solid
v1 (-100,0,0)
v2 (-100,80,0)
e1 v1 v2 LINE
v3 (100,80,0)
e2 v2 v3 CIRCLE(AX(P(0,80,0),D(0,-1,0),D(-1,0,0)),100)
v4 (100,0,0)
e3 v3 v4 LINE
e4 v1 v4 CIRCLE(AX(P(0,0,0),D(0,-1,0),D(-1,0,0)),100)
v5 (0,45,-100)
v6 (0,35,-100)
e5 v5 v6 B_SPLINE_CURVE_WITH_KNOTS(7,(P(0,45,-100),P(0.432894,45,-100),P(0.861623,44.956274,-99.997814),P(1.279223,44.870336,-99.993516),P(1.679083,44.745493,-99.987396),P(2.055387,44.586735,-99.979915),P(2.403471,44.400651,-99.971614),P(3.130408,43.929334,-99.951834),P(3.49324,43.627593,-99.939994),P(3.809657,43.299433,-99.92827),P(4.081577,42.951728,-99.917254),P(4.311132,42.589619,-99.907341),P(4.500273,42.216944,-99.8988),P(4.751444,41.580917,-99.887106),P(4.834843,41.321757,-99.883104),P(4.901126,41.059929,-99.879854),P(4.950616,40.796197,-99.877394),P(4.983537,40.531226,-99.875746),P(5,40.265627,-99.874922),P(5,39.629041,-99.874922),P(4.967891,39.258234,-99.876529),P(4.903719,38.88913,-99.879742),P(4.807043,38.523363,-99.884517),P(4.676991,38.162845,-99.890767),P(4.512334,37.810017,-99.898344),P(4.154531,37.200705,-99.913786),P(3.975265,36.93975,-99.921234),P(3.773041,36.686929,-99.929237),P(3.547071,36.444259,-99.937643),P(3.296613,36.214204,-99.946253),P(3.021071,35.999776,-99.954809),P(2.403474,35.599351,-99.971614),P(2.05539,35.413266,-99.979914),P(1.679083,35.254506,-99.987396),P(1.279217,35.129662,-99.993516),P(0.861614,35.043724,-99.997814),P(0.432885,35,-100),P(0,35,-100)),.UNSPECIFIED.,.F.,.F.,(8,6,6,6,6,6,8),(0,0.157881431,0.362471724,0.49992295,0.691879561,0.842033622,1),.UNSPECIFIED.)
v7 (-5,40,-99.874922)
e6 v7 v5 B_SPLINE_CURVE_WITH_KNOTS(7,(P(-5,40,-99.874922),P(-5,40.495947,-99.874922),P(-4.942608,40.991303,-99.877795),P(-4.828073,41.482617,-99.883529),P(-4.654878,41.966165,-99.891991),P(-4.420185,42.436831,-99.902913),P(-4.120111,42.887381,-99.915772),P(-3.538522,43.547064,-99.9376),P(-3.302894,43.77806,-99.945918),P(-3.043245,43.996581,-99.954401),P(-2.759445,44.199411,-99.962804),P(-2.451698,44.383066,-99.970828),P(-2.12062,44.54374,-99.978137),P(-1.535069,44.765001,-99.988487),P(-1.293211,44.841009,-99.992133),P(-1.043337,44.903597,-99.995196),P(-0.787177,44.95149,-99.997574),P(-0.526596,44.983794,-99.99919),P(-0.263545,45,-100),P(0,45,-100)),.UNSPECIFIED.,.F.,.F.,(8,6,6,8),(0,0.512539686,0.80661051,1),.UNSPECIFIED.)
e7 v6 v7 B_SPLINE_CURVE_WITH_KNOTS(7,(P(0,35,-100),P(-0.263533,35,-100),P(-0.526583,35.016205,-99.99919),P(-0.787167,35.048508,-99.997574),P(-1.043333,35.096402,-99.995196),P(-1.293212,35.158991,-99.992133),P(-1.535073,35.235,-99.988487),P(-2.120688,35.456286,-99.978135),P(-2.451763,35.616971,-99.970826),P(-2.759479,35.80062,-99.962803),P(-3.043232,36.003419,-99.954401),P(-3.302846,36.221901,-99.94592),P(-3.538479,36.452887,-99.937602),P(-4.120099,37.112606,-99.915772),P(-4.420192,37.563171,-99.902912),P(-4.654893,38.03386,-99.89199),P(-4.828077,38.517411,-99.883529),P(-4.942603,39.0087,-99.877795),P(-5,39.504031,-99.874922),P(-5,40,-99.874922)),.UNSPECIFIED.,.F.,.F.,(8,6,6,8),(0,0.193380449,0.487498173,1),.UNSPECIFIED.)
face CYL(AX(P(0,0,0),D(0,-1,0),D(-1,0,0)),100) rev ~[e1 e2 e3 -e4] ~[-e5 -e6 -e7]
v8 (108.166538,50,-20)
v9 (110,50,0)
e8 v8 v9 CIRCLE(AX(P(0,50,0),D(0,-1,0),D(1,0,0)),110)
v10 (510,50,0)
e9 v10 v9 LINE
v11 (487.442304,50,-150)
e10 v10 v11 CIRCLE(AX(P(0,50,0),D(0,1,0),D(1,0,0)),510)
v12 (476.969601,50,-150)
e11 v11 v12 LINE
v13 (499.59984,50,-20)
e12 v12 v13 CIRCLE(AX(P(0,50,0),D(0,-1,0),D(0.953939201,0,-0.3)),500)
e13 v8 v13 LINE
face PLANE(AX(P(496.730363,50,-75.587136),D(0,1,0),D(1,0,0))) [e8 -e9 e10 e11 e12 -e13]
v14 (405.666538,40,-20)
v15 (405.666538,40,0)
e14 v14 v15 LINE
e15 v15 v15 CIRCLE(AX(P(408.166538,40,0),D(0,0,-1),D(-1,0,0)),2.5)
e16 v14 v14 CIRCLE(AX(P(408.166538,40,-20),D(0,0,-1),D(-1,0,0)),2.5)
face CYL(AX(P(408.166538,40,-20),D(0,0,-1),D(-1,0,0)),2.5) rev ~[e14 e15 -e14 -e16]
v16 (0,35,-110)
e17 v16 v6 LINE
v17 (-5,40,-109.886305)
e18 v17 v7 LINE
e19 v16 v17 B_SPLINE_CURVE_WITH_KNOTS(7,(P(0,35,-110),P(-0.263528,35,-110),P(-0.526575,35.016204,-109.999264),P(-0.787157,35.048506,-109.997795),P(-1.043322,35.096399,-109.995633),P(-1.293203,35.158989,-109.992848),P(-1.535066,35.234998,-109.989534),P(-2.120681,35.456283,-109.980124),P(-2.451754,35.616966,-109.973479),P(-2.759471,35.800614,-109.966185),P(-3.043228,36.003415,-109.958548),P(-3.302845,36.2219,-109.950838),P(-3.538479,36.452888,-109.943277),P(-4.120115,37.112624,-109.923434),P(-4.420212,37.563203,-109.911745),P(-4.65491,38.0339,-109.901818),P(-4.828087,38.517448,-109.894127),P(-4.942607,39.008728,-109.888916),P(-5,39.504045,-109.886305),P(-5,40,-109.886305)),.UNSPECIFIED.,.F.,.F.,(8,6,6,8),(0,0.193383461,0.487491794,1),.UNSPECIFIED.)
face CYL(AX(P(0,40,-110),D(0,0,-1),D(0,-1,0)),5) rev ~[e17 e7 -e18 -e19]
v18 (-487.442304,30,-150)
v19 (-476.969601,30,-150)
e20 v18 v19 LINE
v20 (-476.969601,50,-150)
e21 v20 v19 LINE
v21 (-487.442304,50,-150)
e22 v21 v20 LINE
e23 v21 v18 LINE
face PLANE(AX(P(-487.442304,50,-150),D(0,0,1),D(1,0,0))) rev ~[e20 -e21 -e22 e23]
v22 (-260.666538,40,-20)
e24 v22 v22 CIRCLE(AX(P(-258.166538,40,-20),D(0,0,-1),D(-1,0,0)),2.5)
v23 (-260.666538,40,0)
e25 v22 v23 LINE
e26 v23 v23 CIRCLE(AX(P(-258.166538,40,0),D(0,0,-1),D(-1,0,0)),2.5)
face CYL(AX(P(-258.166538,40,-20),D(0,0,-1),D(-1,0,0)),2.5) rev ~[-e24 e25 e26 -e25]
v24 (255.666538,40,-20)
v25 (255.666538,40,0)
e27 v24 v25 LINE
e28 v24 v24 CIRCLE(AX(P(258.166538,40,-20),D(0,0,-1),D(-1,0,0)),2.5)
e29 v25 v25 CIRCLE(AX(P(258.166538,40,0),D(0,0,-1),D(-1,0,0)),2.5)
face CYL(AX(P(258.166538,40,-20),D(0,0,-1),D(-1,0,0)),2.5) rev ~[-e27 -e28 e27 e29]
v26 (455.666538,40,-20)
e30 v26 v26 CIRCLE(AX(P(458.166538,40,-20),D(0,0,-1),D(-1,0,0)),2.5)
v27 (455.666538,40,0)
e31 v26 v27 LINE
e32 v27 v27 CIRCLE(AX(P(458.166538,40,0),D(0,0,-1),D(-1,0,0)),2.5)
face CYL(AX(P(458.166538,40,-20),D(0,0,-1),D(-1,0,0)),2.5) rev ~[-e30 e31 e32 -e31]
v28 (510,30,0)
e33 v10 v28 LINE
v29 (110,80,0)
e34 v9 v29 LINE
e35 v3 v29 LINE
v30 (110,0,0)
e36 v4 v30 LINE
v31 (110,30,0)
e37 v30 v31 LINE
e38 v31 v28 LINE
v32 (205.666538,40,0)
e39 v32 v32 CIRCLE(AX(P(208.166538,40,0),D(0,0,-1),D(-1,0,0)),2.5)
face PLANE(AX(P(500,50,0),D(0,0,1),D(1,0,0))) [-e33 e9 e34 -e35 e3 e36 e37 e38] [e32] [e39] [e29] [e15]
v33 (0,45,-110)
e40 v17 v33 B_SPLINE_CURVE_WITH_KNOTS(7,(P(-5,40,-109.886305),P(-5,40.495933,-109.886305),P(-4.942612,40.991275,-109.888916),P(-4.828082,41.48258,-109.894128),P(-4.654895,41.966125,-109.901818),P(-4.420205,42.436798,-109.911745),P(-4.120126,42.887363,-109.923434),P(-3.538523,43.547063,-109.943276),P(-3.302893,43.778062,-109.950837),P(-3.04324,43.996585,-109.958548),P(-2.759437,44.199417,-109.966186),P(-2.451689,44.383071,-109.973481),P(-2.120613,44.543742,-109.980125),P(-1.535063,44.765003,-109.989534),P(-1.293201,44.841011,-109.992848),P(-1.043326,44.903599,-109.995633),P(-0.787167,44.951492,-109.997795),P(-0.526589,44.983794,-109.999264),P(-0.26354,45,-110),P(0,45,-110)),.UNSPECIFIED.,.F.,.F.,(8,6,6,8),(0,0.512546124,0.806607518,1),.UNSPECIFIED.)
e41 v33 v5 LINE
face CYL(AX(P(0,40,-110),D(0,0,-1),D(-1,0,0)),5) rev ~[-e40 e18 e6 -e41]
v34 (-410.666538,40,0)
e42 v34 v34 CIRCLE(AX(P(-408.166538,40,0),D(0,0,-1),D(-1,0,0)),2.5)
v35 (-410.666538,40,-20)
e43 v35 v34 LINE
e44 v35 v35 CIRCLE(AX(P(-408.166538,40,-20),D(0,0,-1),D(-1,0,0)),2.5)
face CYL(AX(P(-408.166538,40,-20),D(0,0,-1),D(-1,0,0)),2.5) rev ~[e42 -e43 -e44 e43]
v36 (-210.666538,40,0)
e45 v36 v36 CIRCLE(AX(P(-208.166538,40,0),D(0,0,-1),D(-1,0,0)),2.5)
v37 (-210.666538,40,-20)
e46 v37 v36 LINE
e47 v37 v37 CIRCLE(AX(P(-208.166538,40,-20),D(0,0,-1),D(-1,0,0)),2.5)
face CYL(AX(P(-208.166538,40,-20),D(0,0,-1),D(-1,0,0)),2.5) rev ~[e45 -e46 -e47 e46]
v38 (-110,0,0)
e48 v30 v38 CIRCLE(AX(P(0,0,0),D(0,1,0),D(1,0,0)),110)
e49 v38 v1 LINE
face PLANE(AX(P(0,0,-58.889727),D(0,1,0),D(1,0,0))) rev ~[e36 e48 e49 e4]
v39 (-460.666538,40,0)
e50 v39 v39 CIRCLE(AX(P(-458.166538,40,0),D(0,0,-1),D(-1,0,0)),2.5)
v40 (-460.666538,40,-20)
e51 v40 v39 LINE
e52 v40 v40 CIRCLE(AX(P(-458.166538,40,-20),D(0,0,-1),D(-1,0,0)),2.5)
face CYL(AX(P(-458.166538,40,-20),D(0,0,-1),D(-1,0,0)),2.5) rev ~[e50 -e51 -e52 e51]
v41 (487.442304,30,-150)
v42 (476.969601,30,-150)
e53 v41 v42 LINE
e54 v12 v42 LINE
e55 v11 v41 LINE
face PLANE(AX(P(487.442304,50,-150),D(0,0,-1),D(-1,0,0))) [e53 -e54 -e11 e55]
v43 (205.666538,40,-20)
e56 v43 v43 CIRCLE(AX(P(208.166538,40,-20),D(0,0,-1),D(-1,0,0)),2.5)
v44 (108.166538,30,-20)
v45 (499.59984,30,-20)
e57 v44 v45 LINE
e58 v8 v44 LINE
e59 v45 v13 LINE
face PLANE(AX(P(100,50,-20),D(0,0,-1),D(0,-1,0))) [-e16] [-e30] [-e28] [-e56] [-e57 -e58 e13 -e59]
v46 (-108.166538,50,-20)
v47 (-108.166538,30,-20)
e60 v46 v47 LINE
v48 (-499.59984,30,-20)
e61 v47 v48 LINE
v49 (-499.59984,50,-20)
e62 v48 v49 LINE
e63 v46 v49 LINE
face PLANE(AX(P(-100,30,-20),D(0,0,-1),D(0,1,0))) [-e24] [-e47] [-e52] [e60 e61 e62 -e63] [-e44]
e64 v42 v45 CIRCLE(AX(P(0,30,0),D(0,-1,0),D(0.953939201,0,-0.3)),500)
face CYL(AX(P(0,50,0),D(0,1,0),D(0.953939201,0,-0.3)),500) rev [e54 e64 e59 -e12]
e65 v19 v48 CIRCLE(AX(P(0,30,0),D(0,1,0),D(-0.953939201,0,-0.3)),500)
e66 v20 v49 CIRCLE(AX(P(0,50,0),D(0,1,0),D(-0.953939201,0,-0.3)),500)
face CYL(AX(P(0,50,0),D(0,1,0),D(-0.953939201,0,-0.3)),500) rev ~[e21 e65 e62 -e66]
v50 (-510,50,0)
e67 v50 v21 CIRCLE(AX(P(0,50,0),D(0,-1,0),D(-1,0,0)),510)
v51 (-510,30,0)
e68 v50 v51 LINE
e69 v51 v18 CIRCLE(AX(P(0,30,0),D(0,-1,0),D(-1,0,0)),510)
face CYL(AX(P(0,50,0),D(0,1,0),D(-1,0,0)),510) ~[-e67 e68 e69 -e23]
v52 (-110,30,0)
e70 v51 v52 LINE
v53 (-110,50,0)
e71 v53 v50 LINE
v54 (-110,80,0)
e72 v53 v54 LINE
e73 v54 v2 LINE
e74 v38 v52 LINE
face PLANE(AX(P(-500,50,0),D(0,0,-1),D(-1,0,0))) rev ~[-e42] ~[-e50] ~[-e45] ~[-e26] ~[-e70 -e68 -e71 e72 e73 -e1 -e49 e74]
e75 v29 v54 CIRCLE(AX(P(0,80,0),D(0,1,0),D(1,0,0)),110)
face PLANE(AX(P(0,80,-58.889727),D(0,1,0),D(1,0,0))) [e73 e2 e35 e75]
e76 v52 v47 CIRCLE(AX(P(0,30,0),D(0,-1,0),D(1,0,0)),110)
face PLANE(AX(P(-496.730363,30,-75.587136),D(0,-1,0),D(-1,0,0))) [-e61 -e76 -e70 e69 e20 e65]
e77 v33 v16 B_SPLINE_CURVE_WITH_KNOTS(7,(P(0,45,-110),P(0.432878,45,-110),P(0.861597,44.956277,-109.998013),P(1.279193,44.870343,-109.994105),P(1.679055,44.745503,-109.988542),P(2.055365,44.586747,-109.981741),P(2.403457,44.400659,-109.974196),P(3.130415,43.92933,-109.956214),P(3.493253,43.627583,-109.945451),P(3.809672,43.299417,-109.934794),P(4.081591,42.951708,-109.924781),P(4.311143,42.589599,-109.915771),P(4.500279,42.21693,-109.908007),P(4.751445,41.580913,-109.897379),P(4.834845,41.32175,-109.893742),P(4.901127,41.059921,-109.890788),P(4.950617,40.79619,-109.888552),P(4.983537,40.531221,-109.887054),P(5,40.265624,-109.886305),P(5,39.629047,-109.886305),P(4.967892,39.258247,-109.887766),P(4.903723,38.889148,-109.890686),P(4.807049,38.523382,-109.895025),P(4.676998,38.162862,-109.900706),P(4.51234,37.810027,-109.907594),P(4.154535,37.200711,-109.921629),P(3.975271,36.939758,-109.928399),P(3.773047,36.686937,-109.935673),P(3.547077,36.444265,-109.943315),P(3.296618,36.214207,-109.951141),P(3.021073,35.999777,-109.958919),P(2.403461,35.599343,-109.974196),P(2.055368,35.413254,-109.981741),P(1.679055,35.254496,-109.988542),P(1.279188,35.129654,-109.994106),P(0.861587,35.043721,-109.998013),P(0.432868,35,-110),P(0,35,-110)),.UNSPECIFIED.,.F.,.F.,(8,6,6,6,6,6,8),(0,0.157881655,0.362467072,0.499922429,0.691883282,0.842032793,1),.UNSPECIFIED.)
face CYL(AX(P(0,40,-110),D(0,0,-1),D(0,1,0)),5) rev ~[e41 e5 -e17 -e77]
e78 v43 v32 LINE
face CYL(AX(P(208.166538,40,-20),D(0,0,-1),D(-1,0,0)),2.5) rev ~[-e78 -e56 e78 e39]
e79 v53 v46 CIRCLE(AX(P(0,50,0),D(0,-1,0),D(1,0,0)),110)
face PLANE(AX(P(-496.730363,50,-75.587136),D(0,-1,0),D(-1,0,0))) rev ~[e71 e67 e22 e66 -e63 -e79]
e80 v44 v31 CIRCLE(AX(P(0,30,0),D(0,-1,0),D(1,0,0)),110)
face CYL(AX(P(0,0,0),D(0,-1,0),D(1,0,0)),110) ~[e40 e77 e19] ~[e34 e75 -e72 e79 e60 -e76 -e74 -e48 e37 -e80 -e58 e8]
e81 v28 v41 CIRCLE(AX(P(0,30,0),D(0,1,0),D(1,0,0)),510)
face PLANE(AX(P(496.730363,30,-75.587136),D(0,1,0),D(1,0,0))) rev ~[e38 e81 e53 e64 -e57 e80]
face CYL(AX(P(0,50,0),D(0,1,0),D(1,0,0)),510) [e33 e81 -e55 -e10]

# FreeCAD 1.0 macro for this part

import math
import FreeCAD as App
import Part
import Sketcher
Q = App.Units.Quantity


def add_polygon(sketch, points):
    """Adds a closed chain of lines whose ends are joined by coincident constraints."""
    first, n = sketch.GeometryCount, len(points)
    for a, b in zip(points, points[1:] + points[:1]):
        sketch.addGeometry(Part.LineSegment(App.Vector(*a, 0), App.Vector(*b, 0)), False)
    for i in range(n):
        sketch.addConstraint(Sketcher.Constraint("Coincident", first + i, 2, first + (i + 1) % n, 1))

doc = App.newDocument("Part")
body = doc.addObject("PartDesign::Body", "Body")

# Sketch on XZ plane
sketch1 = body.newObject("Sketcher::SketchObject", "Sketch")
sketch1.AttachmentSupport = (doc.getObject("XZ_Plane"), [""])
sketch1.MapMode = "FlatFace"
sketch1.addGeometry(Part.LineSegment(App.Vector(-110, 0, 0), App.Vector(-100, 0, 0)), False)
sketch1.addGeometry(Part.ArcOfCircle(Part.Circle(App.Vector(0, 0, 0), App.Vector(0, 0, 1), 100), math.radians(180), math.radians(360)), False)
sketch1.addGeometry(Part.LineSegment(App.Vector(100, 0, 0), App.Vector(110, 0, 0)), False)
sketch1.addGeometry(Part.ArcOfCircle(Part.Circle(App.Vector(0, 0, 0), App.Vector(0, 0, 1), 110), math.radians(180), math.radians(360)), False)
sketch1.addConstraint(Sketcher.Constraint("Coincident", 0, 2, 1, 1))
sketch1.addConstraint(Sketcher.Constraint("Coincident", 1, 2, 2, 1))
sketch1.addConstraint(Sketcher.Constraint("Coincident", 2, 2, 3, 2))
sketch1.addConstraint(Sketcher.Constraint("Coincident", 3, 1, 0, 1))
sketch1.addConstraint(Sketcher.Constraint("Horizontal", 0))
sketch1.addConstraint(Sketcher.Constraint("Horizontal", 2))
sketch1.addConstraint(Sketcher.Constraint("Coincident", 1, 3, -1, 1))
sketch1.addConstraint(Sketcher.Constraint("Coincident", 3, 3, -1, 1))
sketch1.addConstraint(Sketcher.Constraint("PointOnObject", 0, 2, -1))
sketch1.addConstraint(Sketcher.Constraint("PointOnObject", 1, 2, -1))
sketch1.addConstraint(Sketcher.Constraint("Radius", 1, Q("100 mm")))
sketch1.addConstraint(Sketcher.Constraint("Radius", 3, Q("110 mm")))
pad1 = body.newObject("PartDesign::Pad", "Pad")
pad1.Profile = sketch1
pad1.Length = 80
pad1.Reversed = True

# Sketch on YZ plane
sketch2 = body.newObject("Sketcher::SketchObject", "Sketch001")
sketch2.AttachmentSupport = (doc.getObject("YZ_Plane"), [""])
sketch2.MapMode = "FlatFace"
sketch2.AttachmentOffset = App.Placement(App.Vector(0, 0, 100), App.Rotation())
add_polygon(sketch2, [(50, -20), (30, -20), (30, 0), (50, 0)])  # lines 0-3
sketch2.addConstraint(Sketcher.Constraint("Horizontal", 0))
sketch2.addConstraint(Sketcher.Constraint("Vertical", 1))
sketch2.addConstraint(Sketcher.Constraint("Horizontal", 2))
sketch2.addConstraint(Sketcher.Constraint("Vertical", 3))
sketch2.addConstraint(Sketcher.Constraint("PointOnObject", 1, 2, -1))
sketch2.addConstraint(Sketcher.Constraint("Equal", 2, 1))
sketch2.addConstraint(Sketcher.Constraint("DistanceX", 0, 2, 0, 1, Q("20 mm")))
sketch2.addConstraint(Sketcher.Constraint("DistanceX", -1, 1, 0, 2, Q("30 mm")))
pad2 = body.newObject("PartDesign::Pad", "Pad001")
pad2.Profile = sketch2
pad2.Length = 400

# Sketch on YZ plane
sketch3 = body.newObject("Sketcher::SketchObject", "Sketch002")
sketch3.AttachmentSupport = (doc.getObject("YZ_Plane"), [""])
sketch3.MapMode = "FlatFace"
sketch3.AttachmentOffset = App.Placement(App.Vector(0, 0, -100), App.Rotation())
add_polygon(sketch3, [(50, 0), (30, 0), (30, -20), (50, -20)])  # lines 0-3
sketch3.addConstraint(Sketcher.Constraint("Horizontal", 0))
sketch3.addConstraint(Sketcher.Constraint("Vertical", 1))
sketch3.addConstraint(Sketcher.Constraint("Horizontal", 2))
sketch3.addConstraint(Sketcher.Constraint("Vertical", 3))
sketch3.addConstraint(Sketcher.Constraint("PointOnObject", 0, 2, -1))
sketch3.addConstraint(Sketcher.Constraint("Equal", 2, 1))
sketch3.addConstraint(Sketcher.Constraint("DistanceX", 0, 2, 0, 1, Q("20 mm")))
sketch3.addConstraint(Sketcher.Constraint("DistanceX", -1, 1, 0, 2, Q("30 mm")))
pad3 = body.newObject("PartDesign::Pad", "Pad002")
pad3.Profile = sketch3
pad3.Length = 400
pad3.Reversed = True

# Sketch on XZ plane
sketch4 = body.newObject("Sketcher::SketchObject", "Sketch003")
sketch4.AttachmentSupport = (doc.getObject("XZ_Plane"), [""])
sketch4.MapMode = "FlatFace"
sketch4.AttachmentOffset = App.Placement(App.Vector(0, 0, -50), App.Rotation())
sketch4.addGeometry(Part.LineSegment(App.Vector(500, 0, 0), App.Vector(510, 0, 0)), False)
sketch4.addGeometry(Part.ArcOfCircle(Part.Circle(App.Vector(0, 0, 0), App.Vector(0, 0, 1), 510), math.radians(-17.1), math.radians(0)), False)
sketch4.addGeometry(Part.LineSegment(App.Vector(487, -150, 0), App.Vector(477, -150, 0)), False)
sketch4.addGeometry(Part.ArcOfCircle(Part.Circle(App.Vector(0, 0, 0), App.Vector(0, 0, 1), 500), math.radians(-17.46), math.radians(0)), False)
sketch4.addConstraint(Sketcher.Constraint("Coincident", 0, 2, 1, 2))
sketch4.addConstraint(Sketcher.Constraint("Coincident", 1, 1, 2, 1))
sketch4.addConstraint(Sketcher.Constraint("Coincident", 2, 2, 3, 1))
sketch4.addConstraint(Sketcher.Constraint("Coincident", 3, 2, 0, 1))
sketch4.addConstraint(Sketcher.Constraint("Horizontal", 0))
sketch4.addConstraint(Sketcher.Constraint("Horizontal", 2))
sketch4.addConstraint(Sketcher.Constraint("Coincident", 1, 3, -1, 1))
sketch4.addConstraint(Sketcher.Constraint("Coincident", 3, 3, -1, 1))
sketch4.addConstraint(Sketcher.Constraint("PointOnObject", 0, 2, -1))
sketch4.addConstraint(Sketcher.Constraint("Radius", 1, Q("510 mm")))
sketch4.addConstraint(Sketcher.Constraint("Radius", 3, Q("500 mm")))
sketch4.addConstraint(Sketcher.Constraint("DistanceY", 2, 2, -1, 1, Q("150 mm")))
pad4 = body.newObject("PartDesign::Pad", "Pad003")
pad4.Profile = sketch4
pad4.Length = 20

# Sketch on XZ plane
sketch5 = body.newObject("Sketcher::SketchObject", "Sketch004")
sketch5.AttachmentSupport = (doc.getObject("XZ_Plane"), [""])
sketch5.MapMode = "FlatFace"
sketch5.AttachmentOffset = App.Placement(App.Vector(0, 0, -50), App.Rotation())
sketch5.addGeometry(Part.ArcOfCircle(Part.Circle(App.Vector(0, 0, 0), App.Vector(0, 0, 1), 510), math.radians(-180), math.radians(-162.9)), False)
sketch5.addGeometry(Part.LineSegment(App.Vector(-510, 0, 0), App.Vector(-500, 0, 0)), False)
sketch5.addGeometry(Part.ArcOfCircle(Part.Circle(App.Vector(0, 0, 0), App.Vector(0, 0, 1), 500), math.radians(-180), math.radians(-162.54)), False)
sketch5.addGeometry(Part.LineSegment(App.Vector(-477, -150, 0), App.Vector(-487, -150, 0)), False)
sketch5.addConstraint(Sketcher.Constraint("Coincident", 0, 1, 1, 1))
sketch5.addConstraint(Sketcher.Constraint("Coincident", 1, 2, 2, 1))
sketch5.addConstraint(Sketcher.Constraint("Coincident", 2, 2, 3, 1))
sketch5.addConstraint(Sketcher.Constraint("Coincident", 3, 2, 0, 2))
sketch5.addConstraint(Sketcher.Constraint("Horizontal", 1))
sketch5.addConstraint(Sketcher.Constraint("Horizontal", 3))
sketch5.addConstraint(Sketcher.Constraint("Coincident", 0, 3, -1, 1))
sketch5.addConstraint(Sketcher.Constraint("Coincident", 2, 3, -1, 1))
sketch5.addConstraint(Sketcher.Constraint("PointOnObject", 1, 2, -1))
sketch5.addConstraint(Sketcher.Constraint("Radius", 0, Q("510 mm")))
sketch5.addConstraint(Sketcher.Constraint("Radius", 2, Q("500 mm")))
sketch5.addConstraint(Sketcher.Constraint("DistanceY", 3, 2, -1, 1, Q("150 mm")))
pad5 = body.newObject("PartDesign::Pad", "Pad004")
pad5.Profile = sketch5
pad5.Length = 20

# Sketch on XY plane
sketch6 = body.newObject("Sketcher::SketchObject", "Sketch005")
sketch6.AttachmentSupport = (doc.getObject("XY_Plane"), [""])
sketch6.MapMode = "FlatFace"
sketch6.AttachmentOffset = App.Placement(App.Vector(0, 0, -20), App.Rotation())
sketch6.addGeometry(Part.Circle(App.Vector(408.2, 40, 0), App.Vector(0, 0, 1), 2.5), False)
sketch6.addGeometry(Part.Circle(App.Vector(258.2, 40, 0), App.Vector(0, 0, 1), 2.5), False)
sketch6.addGeometry(Part.Circle(App.Vector(-258.2, 40, 0), App.Vector(0, 0, 1), 2.5), False)
sketch6.addGeometry(Part.Circle(App.Vector(-408.2, 40, 0), App.Vector(0, 0, 1), 2.5), False)
sketch6.addGeometry(Part.Circle(App.Vector(458.2, 40, 0), App.Vector(0, 0, 1), 2.5), False)
sketch6.addGeometry(Part.Circle(App.Vector(208.2, 40, 0), App.Vector(0, 0, 1), 2.5), False)
sketch6.addGeometry(Part.Circle(App.Vector(-208.2, 40, 0), App.Vector(0, 0, 1), 2.5), False)
sketch6.addGeometry(Part.Circle(App.Vector(-458.2, 40, 0), App.Vector(0, 0, 1), 2.5), False)
sketch6.addConstraint(Sketcher.Constraint("Equal", 0, 1))
sketch6.addConstraint(Sketcher.Constraint("Equal", 1, 2))
sketch6.addConstraint(Sketcher.Constraint("Equal", 2, 3))
sketch6.addConstraint(Sketcher.Constraint("Equal", 3, 4))
sketch6.addConstraint(Sketcher.Constraint("Equal", 4, 5))
sketch6.addConstraint(Sketcher.Constraint("Equal", 5, 6))
sketch6.addConstraint(Sketcher.Constraint("Equal", 6, 7))
sketch6.addConstraint(Sketcher.Constraint("Symmetric", 1, 3, 2, 3, -2))
sketch6.addConstraint(Sketcher.Constraint("Symmetric", 0, 3, 3, 3, -2))
sketch6.addConstraint(Sketcher.Constraint("Symmetric", 5, 3, 6, 3, -2))
sketch6.addConstraint(Sketcher.Constraint("Symmetric", 4, 3, 7, 3, -2))
sketch6.addConstraint(Sketcher.Constraint("Horizontal", 0, 3, 1, 3))
sketch6.addConstraint(Sketcher.Constraint("Horizontal", 3, 3, 4, 3))
sketch6.addConstraint(Sketcher.Constraint("Horizontal", 4, 3, 5, 3))
sketch6.addConstraint(Sketcher.Constraint("Diameter", 0, Q("5 mm")))
sketch6.addConstraint(Sketcher.Constraint("DistanceY", -1, 1, 0, 3, Q("40 mm")))
sketch6.addConstraint(Sketcher.Constraint("DistanceX", 1, 3, 0, 3, Q("150 mm")))
sketch6.addConstraint(Sketcher.Constraint("DistanceX", 0, 3, 4, 3, Q("50 mm")))
sketch6.addConstraint(Sketcher.Constraint("DistanceX", 5, 3, 1, 3, Q("50 mm")))
sketch6.addConstraint(Sketcher.Constraint("DistanceX", -1, 1, 0, 3, Q("408.166538 mm")))
pocket1 = body.newObject("PartDesign::Pocket", "Pocket")
pocket1.Profile = sketch6
pocket1.Length = 20
pocket1.Reversed = True

# Sketch on XY plane
sketch7 = body.newObject("Sketcher::SketchObject", "Sketch006")
sketch7.AttachmentSupport = (doc.getObject("XY_Plane"), [""])
sketch7.MapMode = "FlatFace"
sketch7.AttachmentOffset = App.Placement(App.Vector(0, 0, -110), App.Rotation())
sketch7.addGeometry(Part.ArcOfCircle(Part.Circle(App.Vector(0, 40, 0), App.Vector(0, 0, 1), 5), math.radians(-90), math.radians(90)), False)
sketch7.addGeometry(Part.ArcOfCircle(Part.Circle(App.Vector(0, 40, 0), App.Vector(0, 0, 1), 5), math.radians(180), math.radians(270)), False)
sketch7.addGeometry(Part.ArcOfCircle(Part.Circle(App.Vector(0, 40, 0), App.Vector(0, 0, 1), 5), math.radians(90), math.radians(180)), False)
sketch7.addConstraint(Sketcher.Constraint("Tangent", 0, 1, 1, 2))
sketch7.addConstraint(Sketcher.Constraint("Tangent", 1, 1, 2, 2))
sketch7.addConstraint(Sketcher.Constraint("Tangent", 2, 1, 0, 2))
sketch7.addConstraint(Sketcher.Constraint("PointOnObject", 0, 3, -2))
sketch7.addConstraint(Sketcher.Constraint("PointOnObject", 0, 1, -2))
sketch7.addConstraint(Sketcher.Constraint("PointOnObject", 2, 1, -2))
sketch7.addConstraint(Sketcher.Constraint("Horizontal", 2, 3, 1, 1))
sketch7.addConstraint(Sketcher.Constraint("Radius", 0, Q("5 mm")))
sketch7.addConstraint(Sketcher.Constraint("DistanceY", -1, 1, 0, 3, Q("40 mm")))
pocket2 = body.newObject("PartDesign::Pocket", "Pocket001")
pocket2.Profile = sketch7
pocket2.Length = 20
pocket2.Reversed = True

doc.recompute()
